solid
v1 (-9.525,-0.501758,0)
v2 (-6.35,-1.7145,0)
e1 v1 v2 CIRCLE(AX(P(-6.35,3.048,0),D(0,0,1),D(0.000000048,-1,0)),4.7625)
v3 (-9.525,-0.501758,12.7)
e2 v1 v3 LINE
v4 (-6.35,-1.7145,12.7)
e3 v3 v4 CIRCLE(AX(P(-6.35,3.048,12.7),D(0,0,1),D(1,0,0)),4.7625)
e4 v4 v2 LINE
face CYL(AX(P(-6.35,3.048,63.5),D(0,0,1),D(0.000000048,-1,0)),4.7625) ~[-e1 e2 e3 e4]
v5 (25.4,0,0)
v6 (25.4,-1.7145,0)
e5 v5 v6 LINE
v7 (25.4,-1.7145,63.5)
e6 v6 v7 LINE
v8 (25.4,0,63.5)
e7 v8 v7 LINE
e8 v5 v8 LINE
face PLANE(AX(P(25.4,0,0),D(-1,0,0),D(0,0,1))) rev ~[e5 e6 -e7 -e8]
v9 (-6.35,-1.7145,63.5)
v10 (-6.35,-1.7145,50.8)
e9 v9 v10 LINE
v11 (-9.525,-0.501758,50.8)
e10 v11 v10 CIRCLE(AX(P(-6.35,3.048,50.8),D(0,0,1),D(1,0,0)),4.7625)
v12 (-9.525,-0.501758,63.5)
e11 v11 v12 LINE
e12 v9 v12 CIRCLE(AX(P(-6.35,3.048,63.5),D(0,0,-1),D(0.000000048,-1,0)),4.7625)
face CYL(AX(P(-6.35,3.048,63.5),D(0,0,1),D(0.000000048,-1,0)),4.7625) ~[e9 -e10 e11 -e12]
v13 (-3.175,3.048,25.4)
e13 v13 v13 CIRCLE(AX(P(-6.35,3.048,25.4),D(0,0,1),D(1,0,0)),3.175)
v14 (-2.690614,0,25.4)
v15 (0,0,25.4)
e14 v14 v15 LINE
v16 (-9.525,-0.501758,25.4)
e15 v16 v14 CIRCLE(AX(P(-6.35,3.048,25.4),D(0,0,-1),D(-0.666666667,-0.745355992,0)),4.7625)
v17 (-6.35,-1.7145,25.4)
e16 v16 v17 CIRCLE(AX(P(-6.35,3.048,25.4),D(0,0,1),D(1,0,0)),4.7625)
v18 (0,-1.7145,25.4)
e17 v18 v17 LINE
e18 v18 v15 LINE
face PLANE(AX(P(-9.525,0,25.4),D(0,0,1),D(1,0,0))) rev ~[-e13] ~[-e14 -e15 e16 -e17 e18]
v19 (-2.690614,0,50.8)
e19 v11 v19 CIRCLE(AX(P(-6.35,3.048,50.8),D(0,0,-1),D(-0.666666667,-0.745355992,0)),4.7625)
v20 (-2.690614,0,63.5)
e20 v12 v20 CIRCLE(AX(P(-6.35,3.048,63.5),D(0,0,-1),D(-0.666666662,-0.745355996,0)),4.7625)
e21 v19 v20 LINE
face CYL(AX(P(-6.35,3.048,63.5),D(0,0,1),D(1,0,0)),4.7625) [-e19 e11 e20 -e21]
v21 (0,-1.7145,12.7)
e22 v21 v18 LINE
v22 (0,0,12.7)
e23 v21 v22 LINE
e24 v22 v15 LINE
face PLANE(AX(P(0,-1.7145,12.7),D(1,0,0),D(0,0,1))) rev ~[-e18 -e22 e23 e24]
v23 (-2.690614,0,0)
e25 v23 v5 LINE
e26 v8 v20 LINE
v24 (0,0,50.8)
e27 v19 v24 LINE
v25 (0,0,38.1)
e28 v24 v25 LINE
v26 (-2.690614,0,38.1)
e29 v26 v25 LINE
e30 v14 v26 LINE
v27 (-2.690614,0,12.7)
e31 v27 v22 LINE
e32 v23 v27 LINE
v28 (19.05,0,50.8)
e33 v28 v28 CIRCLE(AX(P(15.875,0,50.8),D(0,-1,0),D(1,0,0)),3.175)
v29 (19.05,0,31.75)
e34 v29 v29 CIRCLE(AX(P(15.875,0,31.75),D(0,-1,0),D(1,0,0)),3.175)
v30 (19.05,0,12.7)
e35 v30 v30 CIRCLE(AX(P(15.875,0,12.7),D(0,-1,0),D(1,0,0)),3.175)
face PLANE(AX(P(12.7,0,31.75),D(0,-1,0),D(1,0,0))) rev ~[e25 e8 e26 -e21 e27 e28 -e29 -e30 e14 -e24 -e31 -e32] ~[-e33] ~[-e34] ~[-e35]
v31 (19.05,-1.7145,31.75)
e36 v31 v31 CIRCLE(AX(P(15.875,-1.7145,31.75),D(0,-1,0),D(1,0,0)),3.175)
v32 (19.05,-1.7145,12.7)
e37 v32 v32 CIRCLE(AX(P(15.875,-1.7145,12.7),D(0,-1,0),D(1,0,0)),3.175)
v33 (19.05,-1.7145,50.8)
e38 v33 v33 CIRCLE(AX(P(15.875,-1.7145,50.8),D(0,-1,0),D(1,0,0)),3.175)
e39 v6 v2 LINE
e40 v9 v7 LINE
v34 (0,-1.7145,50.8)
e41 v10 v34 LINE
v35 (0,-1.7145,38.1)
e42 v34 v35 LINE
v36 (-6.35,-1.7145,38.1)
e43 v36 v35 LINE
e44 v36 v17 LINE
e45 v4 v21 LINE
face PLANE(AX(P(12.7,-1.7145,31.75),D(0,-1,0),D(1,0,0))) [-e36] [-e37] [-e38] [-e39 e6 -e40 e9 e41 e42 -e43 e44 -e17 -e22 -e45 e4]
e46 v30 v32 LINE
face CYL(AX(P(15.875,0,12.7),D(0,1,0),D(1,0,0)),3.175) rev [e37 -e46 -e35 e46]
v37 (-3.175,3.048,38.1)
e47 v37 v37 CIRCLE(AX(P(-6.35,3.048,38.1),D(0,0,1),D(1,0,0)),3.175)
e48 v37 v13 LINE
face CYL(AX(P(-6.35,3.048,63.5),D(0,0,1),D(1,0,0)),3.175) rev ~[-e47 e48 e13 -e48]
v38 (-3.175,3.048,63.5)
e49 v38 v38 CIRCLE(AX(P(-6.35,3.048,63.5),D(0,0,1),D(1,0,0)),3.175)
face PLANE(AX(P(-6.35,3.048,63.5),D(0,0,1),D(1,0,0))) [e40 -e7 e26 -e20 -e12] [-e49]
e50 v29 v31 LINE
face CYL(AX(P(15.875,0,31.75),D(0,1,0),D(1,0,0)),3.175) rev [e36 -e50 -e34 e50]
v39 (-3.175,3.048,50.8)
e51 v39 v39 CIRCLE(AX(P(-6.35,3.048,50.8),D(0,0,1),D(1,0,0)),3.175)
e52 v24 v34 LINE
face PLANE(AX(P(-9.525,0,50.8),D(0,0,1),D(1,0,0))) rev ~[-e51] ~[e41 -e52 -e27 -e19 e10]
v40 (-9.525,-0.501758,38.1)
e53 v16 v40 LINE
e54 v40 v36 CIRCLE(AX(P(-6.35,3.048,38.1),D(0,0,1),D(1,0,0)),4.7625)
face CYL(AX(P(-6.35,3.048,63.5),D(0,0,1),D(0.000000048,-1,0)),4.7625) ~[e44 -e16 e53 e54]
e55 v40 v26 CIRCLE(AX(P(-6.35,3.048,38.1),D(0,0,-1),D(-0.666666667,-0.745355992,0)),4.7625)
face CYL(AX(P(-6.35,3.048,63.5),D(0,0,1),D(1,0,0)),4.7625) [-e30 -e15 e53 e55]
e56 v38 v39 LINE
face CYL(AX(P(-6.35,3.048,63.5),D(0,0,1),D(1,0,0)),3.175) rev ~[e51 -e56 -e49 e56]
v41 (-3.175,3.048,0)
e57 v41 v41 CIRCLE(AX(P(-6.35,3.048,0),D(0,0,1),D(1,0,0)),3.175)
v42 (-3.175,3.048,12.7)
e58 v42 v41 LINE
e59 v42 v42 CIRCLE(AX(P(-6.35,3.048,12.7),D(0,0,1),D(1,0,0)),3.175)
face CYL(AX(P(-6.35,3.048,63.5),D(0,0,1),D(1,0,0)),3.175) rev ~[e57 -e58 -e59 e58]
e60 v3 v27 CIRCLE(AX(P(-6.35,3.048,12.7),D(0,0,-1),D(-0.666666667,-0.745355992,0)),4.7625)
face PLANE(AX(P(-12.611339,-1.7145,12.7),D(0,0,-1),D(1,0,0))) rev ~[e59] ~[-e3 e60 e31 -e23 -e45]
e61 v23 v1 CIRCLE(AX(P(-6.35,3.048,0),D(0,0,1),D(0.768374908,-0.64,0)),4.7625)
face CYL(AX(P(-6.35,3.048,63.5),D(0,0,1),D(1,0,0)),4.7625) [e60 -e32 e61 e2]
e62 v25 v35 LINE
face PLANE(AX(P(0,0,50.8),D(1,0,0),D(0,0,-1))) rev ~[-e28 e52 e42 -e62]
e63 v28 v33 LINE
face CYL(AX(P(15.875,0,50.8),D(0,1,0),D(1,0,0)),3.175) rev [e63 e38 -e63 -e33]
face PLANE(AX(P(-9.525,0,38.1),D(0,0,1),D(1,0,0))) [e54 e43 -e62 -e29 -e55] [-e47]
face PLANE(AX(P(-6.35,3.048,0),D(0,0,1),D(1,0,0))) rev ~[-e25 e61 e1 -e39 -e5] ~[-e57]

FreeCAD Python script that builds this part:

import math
import FreeCAD as App
import Part
import Sketcher
Q = App.Units.Quantity

doc = App.newDocument("Part")
params = doc.addObject("Spreadsheet::Sheet", "Params")
for row, (alias, value) in enumerate([
    ("sketch1_diameter", "0.25 in"),
    ("sketch1_height", "2.5 in"),
    ("sketch1_width", "1.375 in"),
    ("pad1_length", "0.0675 in"),
    ("sketch2_diameter", "0.375 in"),
    ("pad2_length", "2.5 in"),
    ("sketch3_diameter", "0.25 in"),
    ("sketch3_radius", "0.1875 in"),
    ("sketch3_width", "0.125 in"),
    ("sketch4_height", "0.5 in"),
    ("pocket2_length", "1 in"),
], start=1):
    params.set(f"A{row}", alias)
    params.set(f"B{row}", "=" + value)
    params.setAlias(f"B{row}", alias)

body = doc.addObject("PartDesign::Body", "Body")

# Sketch on XZ plane
sketch1 = doc.addObject("Sketcher::SketchObject", "Sketch")
body.addObject(sketch1)
sketch1.AttachmentSupport = (doc.XZ_Plane, [""])
sketch1.MapMode = "FlatFace"
sketch1.addGeometry(Part.LineSegment(App.Vector(25.4, 0, 0), App.Vector(25.4, 63.5, 0)), False)
sketch1.addGeometry(Part.LineSegment(App.Vector(25.4, 63.5, 0), App.Vector(-9.525, 63.5, 0)), False)
sketch1.addGeometry(Part.LineSegment(App.Vector(-9.525, 63.5, 0), App.Vector(-9.525, 50.8, 0)), False)
sketch1.addGeometry(Part.LineSegment(App.Vector(-9.525, 50.8, 0), App.Vector(0, 50.8, 0)), False)
sketch1.addGeometry(Part.LineSegment(App.Vector(0, 50.8, 0), App.Vector(0, 38.1, 0)), False)
sketch1.addGeometry(Part.LineSegment(App.Vector(0, 38.1, 0), App.Vector(-9.525, 38.1, 0)), False)
sketch1.addGeometry(Part.LineSegment(App.Vector(-9.525, 38.1, 0), App.Vector(-9.525, 25.4, 0)), False)
sketch1.addGeometry(Part.LineSegment(App.Vector(-9.525, 25.4, 0), App.Vector(0, 25.4, 0)), False)
sketch1.addGeometry(Part.LineSegment(App.Vector(0, 25.4, 0), App.Vector(0, 12.7, 0)), False)
sketch1.addGeometry(Part.LineSegment(App.Vector(0, 12.7, 0), App.Vector(-9.525, 12.7, 0)), False)
sketch1.addGeometry(Part.LineSegment(App.Vector(-9.525, 12.7, 0), App.Vector(-9.525, 0, 0)), False)
sketch1.addGeometry(Part.LineSegment(App.Vector(-9.525, 0, 0), App.Vector(25.4, 0, 0)), False)
sketch1.addGeometry(Part.Circle(App.Vector(15.875, 12.7, 0), App.Vector(0, 0, 1), 3.175), False)
sketch1.addGeometry(Part.Circle(App.Vector(15.875, 31.75, 0), App.Vector(0, 0, 1), 3.175), False)
sketch1.addGeometry(Part.Circle(App.Vector(15.875, 50.8, 0), App.Vector(0, 0, 1), 3.175), False)
sketch1.addConstraint(Sketcher.Constraint("Coincident", 0, 2, 1, 1))
sketch1.addConstraint(Sketcher.Constraint("Coincident", 1, 2, 2, 1))
sketch1.addConstraint(Sketcher.Constraint("Coincident", 2, 2, 3, 1))
sketch1.addConstraint(Sketcher.Constraint("Coincident", 3, 2, 4, 1))
sketch1.addConstraint(Sketcher.Constraint("Coincident", 4, 2, 5, 1))
sketch1.addConstraint(Sketcher.Constraint("Coincident", 5, 2, 6, 1))
sketch1.addConstraint(Sketcher.Constraint("Coincident", 6, 2, 7, 1))
sketch1.addConstraint(Sketcher.Constraint("Coincident", 7, 2, 8, 1))
sketch1.addConstraint(Sketcher.Constraint("Coincident", 8, 2, 9, 1))
sketch1.addConstraint(Sketcher.Constraint("Coincident", 9, 2, 10, 1))
sketch1.addConstraint(Sketcher.Constraint("Coincident", 10, 2, 11, 1))
sketch1.addConstraint(Sketcher.Constraint("Coincident", 11, 2, 0, 1))
sketch1.addConstraint(Sketcher.Constraint("Vertical", 0))
sketch1.addConstraint(Sketcher.Constraint("Horizontal", 1))
sketch1.addConstraint(Sketcher.Constraint("Vertical", 2))
sketch1.addConstraint(Sketcher.Constraint("Horizontal", 3))
sketch1.addConstraint(Sketcher.Constraint("Vertical", 4))
sketch1.addConstraint(Sketcher.Constraint("Horizontal", 5))
sketch1.addConstraint(Sketcher.Constraint("Vertical", 6))
sketch1.addConstraint(Sketcher.Constraint("Horizontal", 7))
sketch1.addConstraint(Sketcher.Constraint("Vertical", 8))
sketch1.addConstraint(Sketcher.Constraint("Horizontal", 9))
sketch1.addConstraint(Sketcher.Constraint("Vertical", 10))
sketch1.addConstraint(Sketcher.Constraint("Horizontal", 11))
sketch1.addConstraint(Sketcher.Constraint("Equal", 12, 13))
sketch1.addConstraint(Sketcher.Constraint("Equal", 13, 14))
sketch1.addConstraint(Sketcher.Constraint("PointOnObject", 3, 2, -2))
sketch1.addConstraint(Sketcher.Constraint("PointOnObject", 7, 2, -2))
sketch1.addConstraint(Sketcher.Constraint("PointOnObject", 10, 2, -1))
sketch1.addConstraint(Sketcher.Constraint("Horizontal", 14, 3, 2, 2))
sketch1.addConstraint(Sketcher.Constraint("Horizontal", 12, 3, 8, 2))
sketch1.addConstraint(Sketcher.Constraint("Vertical", 12, 3, 13, 3))
sketch1.addConstraint(Sketcher.Constraint("Vertical", 13, 3, 14, 3))
sketch1.addConstraint(Sketcher.Constraint("Vertical", 2, 2, 5, 2))
sketch1.addConstraint(Sketcher.Constraint("Vertical", 6, 2, 9, 2))
sketch1.addConstraint(Sketcher.Constraint("Equal", 2, 4))
sketch1.addConstraint(Sketcher.Constraint("Equal", 4, 6))
sketch1.addConstraint(Sketcher.Constraint("Equal", 6, 8))
sketch1.addConstraint(Sketcher.Constraint("Equal", 8, 10))
sketch1.addConstraint(Sketcher.Constraint("Diameter", 12, Q("0.25 in")))
sketch1.addConstraint(Sketcher.Constraint("DistanceY", 0, 1, 0, 2, Q("2.5 in")))
sketch1.addConstraint(Sketcher.Constraint("DistanceX", -1, 1, 0, 2, Q("1 in")))
sketch1.addConstraint(Sketcher.Constraint("DistanceX", 1, 2, 14, 3, Q("1 in")))
sketch1.addConstraint(Sketcher.Constraint("DistanceX", 1, 2, 1, 1, Q("1.375 in")))
sketch1.addConstraint(Sketcher.Constraint("DistanceY", -1, 1, 13, 3, Q("1.25 in")))
sketch1.setExpression("Constraints[39]", "Params.sketch1_diameter")
sketch1.setExpression("Constraints[40]", "Params.sketch1_height")
sketch1.setExpression("Constraints[43]", "Params.sketch1_width")
pad1 = doc.addObject("PartDesign::Pad", "Pad")
body.addObject(pad1)
pad1.Profile = sketch1
pad1.setExpression("Length", "Params.pad1_length")

# Sketch on XY plane
sketch2 = doc.addObject("Sketcher::SketchObject", "Sketch001")
body.addObject(sketch2)
sketch2.AttachmentSupport = (doc.XY_Plane, [""])
sketch2.MapMode = "FlatFace"
sketch2.AttachmentOffset = App.Placement(App.Vector(0, 0, 2.5 * 25.4), App.Rotation())
sketch2.addGeometry(Part.Circle(App.Vector(-6.35, 3.048, 0), App.Vector(0, 0, 1), 4.7625), False)
sketch2.addConstraint(Sketcher.Constraint("Diameter", 0, Q("0.375 in")))
sketch2.addConstraint(Sketcher.Constraint("DistanceX", 0, 3, -1, 1, Q("0.25 in")))
sketch2.addConstraint(Sketcher.Constraint("DistanceY", -1, 1, 0, 3, Q("0.12 in")))
sketch2.setExpression("Constraints[0]", "Params.sketch2_diameter")
pad2 = doc.addObject("PartDesign::Pad", "Pad001")
body.addObject(pad2)
pad2.Profile = sketch2
pad2.setExpression("Length", "Params.pad2_length")
pad2.Reversed = True

# Sketch on XY plane
sketch3 = doc.addObject("Sketcher::SketchObject", "Sketch002")
body.addObject(sketch3)
sketch3.AttachmentSupport = (doc.XY_Plane, [""])
sketch3.MapMode = "FlatFace"
sketch3.AttachmentOffset = App.Placement(App.Vector(0, 0, 2.5 * 25.4), App.Rotation())
sketch3.addGeometry(Part.ArcOfCircle(Part.Circle(App.Vector(-6.35, 3.048, 0), App.Vector(0, 0, 1), 4.7625), math.radians(-131.810315), math.radians(-89.999997)), False)
sketch3.addGeometry(Part.LineSegment(App.Vector(-9.525, -0.501758, 0), App.Vector(-9.525, -1.7145, 0)), False)
sketch3.addGeometry(Part.LineSegment(App.Vector(-9.525, -1.7145, 0), App.Vector(-6.35, -1.7145, 0)), False)
sketch3.addGeometry(Part.Circle(App.Vector(-6.35, 3.048, 0), App.Vector(0, 0, 1), 3.175), False)
sketch3.addConstraint(Sketcher.Constraint("Coincident", 0, 1, 1, 1))
sketch3.addConstraint(Sketcher.Constraint("Coincident", 1, 2, 2, 1))
sketch3.addConstraint(Sketcher.Constraint("Tangent", 2, 2, 0, 2))
sketch3.addConstraint(Sketcher.Constraint("Vertical", 1))
sketch3.addConstraint(Sketcher.Constraint("Horizontal", 2))
sketch3.addConstraint(Sketcher.Constraint("Coincident", 3, 3, 0, 3))
sketch3.addConstraint(Sketcher.Constraint("Diameter", 3, Q("0.25 in")))
sketch3.addConstraint(Sketcher.Constraint("Radius", 0, Q("0.1875 in")))
sketch3.addConstraint(Sketcher.Constraint("DistanceX", 2, 1, 2, 2, Q("0.125 in")))
sketch3.addConstraint(Sketcher.Constraint("DistanceX", 0, 3, -1, 1, Q("0.25 in")))
sketch3.addConstraint(Sketcher.Constraint("DistanceY", -1, 1, 0, 3, Q("0.12 in")))
sketch3.setExpression("Constraints[6]", "Params.sketch3_diameter")
sketch3.setExpression("Constraints[7]", "Params.sketch3_radius")
sketch3.setExpression("Constraints[8]", "Params.sketch3_width")
pocket1 = doc.addObject("PartDesign::Pocket", "Pocket")
body.addObject(pocket1)
pocket1.Profile = sketch3
pocket1.Type = "ThroughAll"

# Sketch on XZ plane
sketch4 = doc.addObject("Sketcher::SketchObject", "Sketch003")
body.addObject(sketch4)
sketch4.AttachmentSupport = (doc.XZ_Plane, [""])
sketch4.MapMode = "FlatFace"
sketch4.AttachmentOffset = App.Placement(App.Vector(0, 0, 0.0675 * 25.4), App.Rotation())
sketch4.addGeometry(Part.LineSegment(App.Vector(-12.38743, 50.8, 0), App.Vector(-12.38743, 38.1, 0)), False)
sketch4.addGeometry(Part.LineSegment(App.Vector(-12.38743, 38.1, 0), App.Vector(0, 38.1, 0)), False)
sketch4.addGeometry(Part.LineSegment(App.Vector(0, 38.1, 0), App.Vector(0, 50.8, 0)), False)
sketch4.addGeometry(Part.LineSegment(App.Vector(0, 50.8, 0), App.Vector(-12.38743, 50.8, 0)), False)
sketch4.addGeometry(Part.LineSegment(App.Vector(-12.611339, 25.4, 0), App.Vector(-12.611339, 12.7, 0)), False)
sketch4.addGeometry(Part.LineSegment(App.Vector(-12.611339, 12.7, 0), App.Vector(0, 12.7, 0)), False)
sketch4.addGeometry(Part.LineSegment(App.Vector(0, 12.7, 0), App.Vector(0, 25.4, 0)), False)
sketch4.addGeometry(Part.LineSegment(App.Vector(0, 25.4, 0), App.Vector(-12.611339, 25.4, 0)), False)
sketch4.addConstraint(Sketcher.Constraint("Coincident", 0, 2, 1, 1))
sketch4.addConstraint(Sketcher.Constraint("Coincident", 1, 2, 2, 1))
sketch4.addConstraint(Sketcher.Constraint("Coincident", 2, 2, 3, 1))
sketch4.addConstraint(Sketcher.Constraint("Coincident", 3, 2, 0, 1))
sketch4.addConstraint(Sketcher.Constraint("Coincident", 4, 2, 5, 1))
sketch4.addConstraint(Sketcher.Constraint("Coincident", 5, 2, 6, 1))
sketch4.addConstraint(Sketcher.Constraint("Coincident", 6, 2, 7, 1))
sketch4.addConstraint(Sketcher.Constraint("Coincident", 7, 2, 4, 1))
sketch4.addConstraint(Sketcher.Constraint("Vertical", 0))
sketch4.addConstraint(Sketcher.Constraint("Horizontal", 1))
sketch4.addConstraint(Sketcher.Constraint("Vertical", 2))
sketch4.addConstraint(Sketcher.Constraint("Horizontal", 3))
sketch4.addConstraint(Sketcher.Constraint("Vertical", 4))
sketch4.addConstraint(Sketcher.Constraint("Horizontal", 5))
sketch4.addConstraint(Sketcher.Constraint("Vertical", 6))
sketch4.addConstraint(Sketcher.Constraint("Horizontal", 7))
sketch4.addConstraint(Sketcher.Constraint("PointOnObject", 1, 2, -2))
sketch4.addConstraint(Sketcher.Constraint("PointOnObject", 5, 2, -2))
sketch4.addConstraint(Sketcher.Constraint("Equal", 2, 4))
sketch4.addConstraint(Sketcher.Constraint("DistanceY", 0, 2, 0, 1, Q("0.5 in")))
sketch4.addConstraint(Sketcher.Constraint("DistanceY", -1, 1, 2, 2, Q("2 in")))
sketch4.addConstraint(Sketcher.Constraint("DistanceY", -1, 1, 6, 2, Q("1 in")))
sketch4.addConstraint(Sketcher.Constraint("DistanceX", 1, 1, 1, 2, 12.38743))
sketch4.addConstraint(Sketcher.Constraint("DistanceX", 5, 1, 5, 2, 12.611339))
sketch4.setExpression("Constraints[19]", "Params.sketch4_height")
pocket2 = doc.addObject("PartDesign::Pocket", "Pocket001")
body.addObject(pocket2)
pocket2.Profile = sketch4
pocket2.setExpression("Length", "Params.pocket2_length")

doc.recompute()
